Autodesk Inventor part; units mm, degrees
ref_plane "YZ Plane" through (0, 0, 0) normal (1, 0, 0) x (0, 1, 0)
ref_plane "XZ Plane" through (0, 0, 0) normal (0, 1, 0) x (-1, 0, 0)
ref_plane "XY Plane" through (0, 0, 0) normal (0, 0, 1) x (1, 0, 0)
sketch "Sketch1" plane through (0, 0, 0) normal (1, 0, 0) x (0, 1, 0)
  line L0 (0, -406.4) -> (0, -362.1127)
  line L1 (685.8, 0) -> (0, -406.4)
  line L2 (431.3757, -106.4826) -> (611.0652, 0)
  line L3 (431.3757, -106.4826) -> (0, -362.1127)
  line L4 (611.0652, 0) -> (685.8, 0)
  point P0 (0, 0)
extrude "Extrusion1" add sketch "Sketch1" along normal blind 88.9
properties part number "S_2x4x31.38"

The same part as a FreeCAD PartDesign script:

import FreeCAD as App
import Part
import Sketcher
Q = App.Units.Quantity

doc = App.newDocument("Part")
body = doc.addObject("PartDesign::Body", "Body")

# Sketch on YZ plane
sketch1 = body.newObject("Sketcher::SketchObject", "Sketch")
sketch1.AttachmentSupport = (doc.getObject("YZ_Plane"), [""])
sketch1.MapMode = "FlatFace"
sketch1.addGeometry(Part.LineSegment(App.Vector(0, -362.1127, 0), App.Vector(0, -406.4, 0)), False)
sketch1.addGeometry(Part.LineSegment(App.Vector(0, -406.4, 0), App.Vector(685.8, 0, 0)), False)
sketch1.addGeometry(Part.LineSegment(App.Vector(685.8, 0, 0), App.Vector(611.0652, 0, 0)), False)
sketch1.addGeometry(Part.LineSegment(App.Vector(611.0652, 0, 0), App.Vector(431.3757, -106.4826, 0)), False)
sketch1.addGeometry(Part.LineSegment(App.Vector(431.3757, -106.4826, 0), App.Vector(0, -362.1127, 0)), False)
sketch1.addConstraint(Sketcher.Constraint("Coincident", 0, 2, 1, 1))
sketch1.addConstraint(Sketcher.Constraint("Coincident", 1, 2, 2, 1))
sketch1.addConstraint(Sketcher.Constraint("Coincident", 2, 2, 3, 1))
sketch1.addConstraint(Sketcher.Constraint("Coincident", 3, 2, 4, 1))
sketch1.addConstraint(Sketcher.Constraint("Coincident", 4, 2, 0, 1))
sketch1.addConstraint(Sketcher.Constraint("Vertical", 0))
sketch1.addConstraint(Sketcher.Constraint("Horizontal", 2))
sketch1.addConstraint(Sketcher.Constraint("PointOnObject", 0, 2, -2))
sketch1.addConstraint(Sketcher.Constraint("PointOnObject", 1, 2, -1))
sketch1.addConstraint(Sketcher.Constraint("Parallel", 1, 3))
sketch1.addConstraint(Sketcher.Constraint("Parallel", 3, 4))
sketch1.addConstraint(Sketcher.Constraint("DistanceY", 0, 2, -1, 1, Q("16 in")))
sketch1.addConstraint(Sketcher.Constraint("DistanceX", -1, 1, 1, 2, Q("27 in")))
sketch1.addConstraint(Sketcher.Constraint("DistanceY", 0, 2, 0, 1, Q("1.7436 in")))
sketch1.addConstraint(Sketcher.Constraint("DistanceX", -1, 1, 3, 2, Q("16.9833 in")))
pad1 = body.newObject("PartDesign::Pad", "Pad")
pad1.Profile = sketch1
pad1.Length = Q("3.5 in")

doc.recompute()
